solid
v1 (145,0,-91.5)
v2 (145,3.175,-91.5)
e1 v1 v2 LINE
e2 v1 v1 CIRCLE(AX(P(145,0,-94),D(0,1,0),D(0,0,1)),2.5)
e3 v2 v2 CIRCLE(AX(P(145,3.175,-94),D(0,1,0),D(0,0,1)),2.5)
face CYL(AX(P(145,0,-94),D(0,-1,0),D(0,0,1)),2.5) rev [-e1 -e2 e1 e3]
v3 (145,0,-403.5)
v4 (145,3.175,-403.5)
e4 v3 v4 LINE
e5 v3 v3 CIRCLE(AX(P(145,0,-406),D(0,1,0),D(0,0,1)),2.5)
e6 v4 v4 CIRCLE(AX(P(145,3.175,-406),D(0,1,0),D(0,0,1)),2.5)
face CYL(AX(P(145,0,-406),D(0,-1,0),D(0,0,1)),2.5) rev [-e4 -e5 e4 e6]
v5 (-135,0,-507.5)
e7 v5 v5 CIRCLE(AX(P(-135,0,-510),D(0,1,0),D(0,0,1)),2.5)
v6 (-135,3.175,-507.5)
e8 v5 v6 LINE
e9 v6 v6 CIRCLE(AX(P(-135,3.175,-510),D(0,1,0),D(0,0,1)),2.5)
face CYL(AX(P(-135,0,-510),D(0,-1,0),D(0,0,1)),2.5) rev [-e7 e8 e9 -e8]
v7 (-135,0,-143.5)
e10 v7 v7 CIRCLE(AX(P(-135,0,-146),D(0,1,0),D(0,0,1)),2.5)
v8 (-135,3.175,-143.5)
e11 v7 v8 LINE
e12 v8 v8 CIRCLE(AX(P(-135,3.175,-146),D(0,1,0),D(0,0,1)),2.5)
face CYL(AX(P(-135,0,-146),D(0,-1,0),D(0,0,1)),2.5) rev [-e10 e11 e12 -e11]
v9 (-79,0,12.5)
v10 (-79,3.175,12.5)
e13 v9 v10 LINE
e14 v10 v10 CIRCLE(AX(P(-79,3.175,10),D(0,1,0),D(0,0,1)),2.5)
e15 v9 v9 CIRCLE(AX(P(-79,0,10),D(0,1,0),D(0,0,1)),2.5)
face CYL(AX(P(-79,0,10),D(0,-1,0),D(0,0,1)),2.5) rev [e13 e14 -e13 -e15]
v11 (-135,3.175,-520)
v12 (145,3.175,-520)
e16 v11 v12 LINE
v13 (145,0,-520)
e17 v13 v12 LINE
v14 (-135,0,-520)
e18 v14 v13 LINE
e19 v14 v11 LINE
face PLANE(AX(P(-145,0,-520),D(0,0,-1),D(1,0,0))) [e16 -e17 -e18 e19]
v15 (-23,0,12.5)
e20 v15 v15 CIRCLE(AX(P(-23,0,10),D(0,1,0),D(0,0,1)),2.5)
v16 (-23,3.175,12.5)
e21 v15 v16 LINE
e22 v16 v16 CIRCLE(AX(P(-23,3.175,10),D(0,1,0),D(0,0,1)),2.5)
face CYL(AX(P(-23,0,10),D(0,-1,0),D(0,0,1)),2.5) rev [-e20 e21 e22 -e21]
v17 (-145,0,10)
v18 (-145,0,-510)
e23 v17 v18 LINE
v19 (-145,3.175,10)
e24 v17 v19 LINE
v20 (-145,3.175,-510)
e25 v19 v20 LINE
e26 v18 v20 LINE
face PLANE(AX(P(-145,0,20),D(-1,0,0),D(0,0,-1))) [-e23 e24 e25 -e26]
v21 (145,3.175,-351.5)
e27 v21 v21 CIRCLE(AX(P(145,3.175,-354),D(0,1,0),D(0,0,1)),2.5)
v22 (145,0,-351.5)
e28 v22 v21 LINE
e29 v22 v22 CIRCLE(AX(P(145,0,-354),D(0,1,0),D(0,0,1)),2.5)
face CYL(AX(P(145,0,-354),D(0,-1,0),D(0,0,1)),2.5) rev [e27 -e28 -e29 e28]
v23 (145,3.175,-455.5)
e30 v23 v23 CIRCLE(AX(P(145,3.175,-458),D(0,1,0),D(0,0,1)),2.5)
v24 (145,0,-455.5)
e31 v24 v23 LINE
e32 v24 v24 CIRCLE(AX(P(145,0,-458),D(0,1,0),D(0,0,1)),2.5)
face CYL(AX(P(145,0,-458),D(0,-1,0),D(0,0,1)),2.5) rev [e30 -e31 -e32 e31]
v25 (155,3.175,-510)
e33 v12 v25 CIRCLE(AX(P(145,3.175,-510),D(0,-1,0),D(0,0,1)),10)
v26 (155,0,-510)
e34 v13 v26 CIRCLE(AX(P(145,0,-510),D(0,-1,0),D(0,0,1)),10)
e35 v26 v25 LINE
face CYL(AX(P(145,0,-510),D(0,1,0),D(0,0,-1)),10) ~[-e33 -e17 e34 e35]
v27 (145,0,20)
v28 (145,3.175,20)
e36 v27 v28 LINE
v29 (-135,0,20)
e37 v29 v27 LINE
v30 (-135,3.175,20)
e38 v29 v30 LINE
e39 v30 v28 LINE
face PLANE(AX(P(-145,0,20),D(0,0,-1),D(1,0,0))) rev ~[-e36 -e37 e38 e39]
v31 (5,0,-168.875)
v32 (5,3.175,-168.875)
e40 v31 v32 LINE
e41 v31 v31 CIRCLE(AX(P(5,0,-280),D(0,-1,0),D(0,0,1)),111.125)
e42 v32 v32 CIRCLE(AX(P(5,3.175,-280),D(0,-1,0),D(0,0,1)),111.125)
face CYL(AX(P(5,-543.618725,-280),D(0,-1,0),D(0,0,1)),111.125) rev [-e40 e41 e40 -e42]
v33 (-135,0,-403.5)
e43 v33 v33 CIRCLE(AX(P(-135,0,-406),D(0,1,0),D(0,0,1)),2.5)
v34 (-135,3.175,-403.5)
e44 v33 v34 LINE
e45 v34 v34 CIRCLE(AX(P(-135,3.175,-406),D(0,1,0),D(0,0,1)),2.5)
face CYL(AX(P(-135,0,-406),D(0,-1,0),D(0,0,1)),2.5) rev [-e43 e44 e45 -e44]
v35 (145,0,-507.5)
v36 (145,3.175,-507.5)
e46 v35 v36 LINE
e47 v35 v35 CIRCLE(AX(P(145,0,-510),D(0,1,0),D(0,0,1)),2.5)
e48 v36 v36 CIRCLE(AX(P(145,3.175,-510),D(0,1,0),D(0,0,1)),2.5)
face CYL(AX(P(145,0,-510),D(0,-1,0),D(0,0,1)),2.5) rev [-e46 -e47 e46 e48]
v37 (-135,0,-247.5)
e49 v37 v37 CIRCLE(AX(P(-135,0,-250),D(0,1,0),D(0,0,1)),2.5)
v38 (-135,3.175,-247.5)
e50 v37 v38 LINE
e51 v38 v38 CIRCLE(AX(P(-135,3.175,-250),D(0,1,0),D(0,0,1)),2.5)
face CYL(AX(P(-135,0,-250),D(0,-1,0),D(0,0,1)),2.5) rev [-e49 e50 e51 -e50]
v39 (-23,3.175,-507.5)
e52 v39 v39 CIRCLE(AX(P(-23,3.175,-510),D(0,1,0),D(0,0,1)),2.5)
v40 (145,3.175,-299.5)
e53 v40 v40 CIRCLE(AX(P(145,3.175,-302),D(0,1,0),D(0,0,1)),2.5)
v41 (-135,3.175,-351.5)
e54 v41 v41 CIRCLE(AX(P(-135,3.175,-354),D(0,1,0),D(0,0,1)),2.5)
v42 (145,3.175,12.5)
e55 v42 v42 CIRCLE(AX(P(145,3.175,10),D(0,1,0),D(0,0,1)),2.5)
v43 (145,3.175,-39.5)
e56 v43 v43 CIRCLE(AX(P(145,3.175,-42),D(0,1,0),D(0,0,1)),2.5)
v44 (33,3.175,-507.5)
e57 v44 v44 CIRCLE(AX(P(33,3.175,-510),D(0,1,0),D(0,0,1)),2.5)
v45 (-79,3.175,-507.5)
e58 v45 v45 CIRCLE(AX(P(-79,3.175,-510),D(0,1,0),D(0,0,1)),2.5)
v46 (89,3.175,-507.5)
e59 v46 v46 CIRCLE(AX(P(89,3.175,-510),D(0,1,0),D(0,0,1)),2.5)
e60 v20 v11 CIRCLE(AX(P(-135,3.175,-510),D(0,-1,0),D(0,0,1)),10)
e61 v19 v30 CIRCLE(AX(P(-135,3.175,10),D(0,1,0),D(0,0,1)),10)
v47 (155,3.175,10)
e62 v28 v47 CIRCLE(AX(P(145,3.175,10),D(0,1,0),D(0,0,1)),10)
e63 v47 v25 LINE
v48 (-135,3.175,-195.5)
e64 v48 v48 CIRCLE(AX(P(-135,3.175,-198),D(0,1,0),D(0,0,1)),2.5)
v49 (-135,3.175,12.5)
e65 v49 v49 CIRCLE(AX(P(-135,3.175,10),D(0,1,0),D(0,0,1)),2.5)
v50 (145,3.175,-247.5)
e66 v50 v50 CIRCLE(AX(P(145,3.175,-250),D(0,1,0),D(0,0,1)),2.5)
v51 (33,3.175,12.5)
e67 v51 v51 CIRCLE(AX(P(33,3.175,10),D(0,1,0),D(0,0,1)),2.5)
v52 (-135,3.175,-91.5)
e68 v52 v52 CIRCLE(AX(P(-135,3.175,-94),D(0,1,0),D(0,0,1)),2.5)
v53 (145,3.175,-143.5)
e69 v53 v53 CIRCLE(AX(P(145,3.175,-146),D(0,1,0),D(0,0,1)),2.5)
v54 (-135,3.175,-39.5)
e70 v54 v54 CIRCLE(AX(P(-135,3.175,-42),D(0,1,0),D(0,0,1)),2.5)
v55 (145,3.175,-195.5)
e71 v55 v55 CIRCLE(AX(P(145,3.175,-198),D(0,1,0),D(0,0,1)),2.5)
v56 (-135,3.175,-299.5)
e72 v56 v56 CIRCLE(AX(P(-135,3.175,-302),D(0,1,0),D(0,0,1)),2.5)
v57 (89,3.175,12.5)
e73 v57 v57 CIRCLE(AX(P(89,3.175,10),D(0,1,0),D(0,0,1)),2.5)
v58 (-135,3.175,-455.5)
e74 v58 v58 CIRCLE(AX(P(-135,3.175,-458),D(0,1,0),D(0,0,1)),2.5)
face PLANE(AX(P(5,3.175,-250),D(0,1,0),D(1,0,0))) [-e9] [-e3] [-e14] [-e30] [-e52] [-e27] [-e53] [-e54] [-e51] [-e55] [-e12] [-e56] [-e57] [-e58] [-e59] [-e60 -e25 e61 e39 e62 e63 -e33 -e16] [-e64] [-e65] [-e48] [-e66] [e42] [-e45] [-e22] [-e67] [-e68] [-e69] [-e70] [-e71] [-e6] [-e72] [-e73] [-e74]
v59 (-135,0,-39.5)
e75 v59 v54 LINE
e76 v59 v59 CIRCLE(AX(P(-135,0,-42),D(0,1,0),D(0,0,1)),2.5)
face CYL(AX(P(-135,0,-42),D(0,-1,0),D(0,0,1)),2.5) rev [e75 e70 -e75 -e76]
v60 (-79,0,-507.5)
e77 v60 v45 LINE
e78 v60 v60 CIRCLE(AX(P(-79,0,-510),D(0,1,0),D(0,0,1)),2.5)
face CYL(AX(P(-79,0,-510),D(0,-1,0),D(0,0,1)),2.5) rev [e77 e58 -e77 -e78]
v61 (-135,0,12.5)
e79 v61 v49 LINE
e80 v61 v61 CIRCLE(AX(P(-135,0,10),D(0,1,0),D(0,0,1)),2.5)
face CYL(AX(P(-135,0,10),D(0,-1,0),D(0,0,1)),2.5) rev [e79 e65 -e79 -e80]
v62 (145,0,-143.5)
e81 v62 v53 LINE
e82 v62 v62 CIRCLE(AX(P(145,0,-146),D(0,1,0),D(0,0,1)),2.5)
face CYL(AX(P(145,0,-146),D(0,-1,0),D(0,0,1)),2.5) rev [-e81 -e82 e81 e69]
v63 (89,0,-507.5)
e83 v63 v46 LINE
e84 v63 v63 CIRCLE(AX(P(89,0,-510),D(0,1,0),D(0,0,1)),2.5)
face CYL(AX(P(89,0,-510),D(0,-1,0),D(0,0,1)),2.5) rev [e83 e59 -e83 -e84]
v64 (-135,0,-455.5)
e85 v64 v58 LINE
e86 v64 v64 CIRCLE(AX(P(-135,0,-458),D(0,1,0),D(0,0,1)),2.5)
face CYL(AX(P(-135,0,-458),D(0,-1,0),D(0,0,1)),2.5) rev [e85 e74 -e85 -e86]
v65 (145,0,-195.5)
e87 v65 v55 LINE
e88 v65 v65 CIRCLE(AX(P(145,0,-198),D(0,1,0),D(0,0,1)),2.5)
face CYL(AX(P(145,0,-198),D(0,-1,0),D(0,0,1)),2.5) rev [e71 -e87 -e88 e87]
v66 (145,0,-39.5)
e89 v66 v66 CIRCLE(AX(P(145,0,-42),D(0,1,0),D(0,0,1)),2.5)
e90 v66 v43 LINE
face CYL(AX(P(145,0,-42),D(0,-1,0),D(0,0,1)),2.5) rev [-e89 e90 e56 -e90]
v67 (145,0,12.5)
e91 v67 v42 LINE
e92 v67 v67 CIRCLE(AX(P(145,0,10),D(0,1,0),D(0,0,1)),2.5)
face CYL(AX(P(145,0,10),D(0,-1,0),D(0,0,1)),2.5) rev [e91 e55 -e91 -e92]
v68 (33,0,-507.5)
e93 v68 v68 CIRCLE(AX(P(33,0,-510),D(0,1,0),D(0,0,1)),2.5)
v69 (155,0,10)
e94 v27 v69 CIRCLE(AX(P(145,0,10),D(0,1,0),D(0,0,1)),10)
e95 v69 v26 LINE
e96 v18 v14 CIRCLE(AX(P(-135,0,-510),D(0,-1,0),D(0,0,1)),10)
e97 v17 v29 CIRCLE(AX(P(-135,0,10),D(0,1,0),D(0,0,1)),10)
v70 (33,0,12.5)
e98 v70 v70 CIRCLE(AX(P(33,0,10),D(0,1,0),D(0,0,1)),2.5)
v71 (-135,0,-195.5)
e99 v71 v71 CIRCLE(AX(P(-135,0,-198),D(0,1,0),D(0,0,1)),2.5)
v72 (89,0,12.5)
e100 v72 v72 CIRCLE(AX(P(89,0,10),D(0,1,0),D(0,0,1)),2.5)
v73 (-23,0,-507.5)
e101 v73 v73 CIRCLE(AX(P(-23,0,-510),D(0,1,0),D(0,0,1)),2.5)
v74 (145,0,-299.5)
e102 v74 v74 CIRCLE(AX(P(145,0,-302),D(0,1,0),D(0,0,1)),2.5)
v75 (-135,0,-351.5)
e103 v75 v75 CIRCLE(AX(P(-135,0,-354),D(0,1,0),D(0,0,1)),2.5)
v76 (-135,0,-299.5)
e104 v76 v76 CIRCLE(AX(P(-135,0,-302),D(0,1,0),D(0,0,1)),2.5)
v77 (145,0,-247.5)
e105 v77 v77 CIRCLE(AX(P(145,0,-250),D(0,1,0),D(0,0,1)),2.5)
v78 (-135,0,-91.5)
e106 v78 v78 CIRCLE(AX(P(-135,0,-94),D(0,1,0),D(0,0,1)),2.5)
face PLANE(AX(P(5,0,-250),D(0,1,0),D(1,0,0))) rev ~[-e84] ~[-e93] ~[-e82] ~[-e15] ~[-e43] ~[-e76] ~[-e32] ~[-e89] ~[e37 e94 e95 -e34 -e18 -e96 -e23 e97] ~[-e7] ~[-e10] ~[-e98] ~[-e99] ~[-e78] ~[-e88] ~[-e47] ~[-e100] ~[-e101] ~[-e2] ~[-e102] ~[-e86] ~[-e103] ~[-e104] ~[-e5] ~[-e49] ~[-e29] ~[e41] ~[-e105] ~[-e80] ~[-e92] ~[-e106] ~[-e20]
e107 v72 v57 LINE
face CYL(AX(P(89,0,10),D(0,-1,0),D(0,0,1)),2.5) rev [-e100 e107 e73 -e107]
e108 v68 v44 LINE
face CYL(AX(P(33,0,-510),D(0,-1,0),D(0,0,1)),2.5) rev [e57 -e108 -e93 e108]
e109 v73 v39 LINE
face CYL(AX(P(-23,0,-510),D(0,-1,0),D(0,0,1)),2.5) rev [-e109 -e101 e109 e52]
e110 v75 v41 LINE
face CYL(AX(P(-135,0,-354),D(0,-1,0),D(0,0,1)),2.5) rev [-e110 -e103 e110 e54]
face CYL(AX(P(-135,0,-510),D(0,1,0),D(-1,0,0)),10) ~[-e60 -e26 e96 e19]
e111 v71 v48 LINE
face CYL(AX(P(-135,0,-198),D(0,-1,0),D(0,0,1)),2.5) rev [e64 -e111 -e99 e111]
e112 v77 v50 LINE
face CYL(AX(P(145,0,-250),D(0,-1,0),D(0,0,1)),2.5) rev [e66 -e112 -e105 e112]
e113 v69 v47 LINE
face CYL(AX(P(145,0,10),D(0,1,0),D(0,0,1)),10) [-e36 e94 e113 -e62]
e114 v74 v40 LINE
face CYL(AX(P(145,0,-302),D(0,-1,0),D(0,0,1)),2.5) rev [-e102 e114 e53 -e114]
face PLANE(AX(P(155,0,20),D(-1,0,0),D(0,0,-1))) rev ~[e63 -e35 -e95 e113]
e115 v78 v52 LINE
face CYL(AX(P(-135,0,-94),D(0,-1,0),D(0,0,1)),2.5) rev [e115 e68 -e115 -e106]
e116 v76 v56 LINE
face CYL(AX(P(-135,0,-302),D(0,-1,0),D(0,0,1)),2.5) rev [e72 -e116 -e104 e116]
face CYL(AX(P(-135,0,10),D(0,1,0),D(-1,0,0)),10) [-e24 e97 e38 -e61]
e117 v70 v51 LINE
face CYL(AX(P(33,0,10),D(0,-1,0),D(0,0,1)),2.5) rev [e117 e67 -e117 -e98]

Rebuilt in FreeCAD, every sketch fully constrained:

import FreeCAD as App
import Part
import Sketcher

V = App.Vector
Q = App.Units.Quantity


def edges_at(feature, points):
    """Names of the edges that pass closest to the given points."""
    edges = feature.Shape.Edges
    near = lambda p: min(range(len(edges)), key=lambda i: edges[i].distToShape(Part.Vertex(*p))[0])
    return sorted({f"Edge{near(p) + 1}" for p in points})


def add_polygon(sketch, points):
    """Adds a closed chain of lines whose ends are joined by coincident constraints."""
    first, n = sketch.GeometryCount, len(points)
    for a, b in zip(points, points[1:] + points[:1]):
        sketch.addGeometry(Part.LineSegment(App.Vector(*a, 0), App.Vector(*b, 0)), False)
    for i in range(n):
        sketch.addConstraint(Sketcher.Constraint("Coincident", first + i, 2, first + (i + 1) % n, 1))

doc = App.newDocument("Part")
body = doc.addObject("PartDesign::Body", "Body")

sketch1 = body.newObject("Sketcher::SketchObject", "Sketch")
sketch1.AttachmentSupport = (doc.getObject("XZ_Plane"), [""])
sketch1.MapMode = "FlatFace"
add_polygon(sketch1, [(-145, -520), (-145, 20), (155, 20), (155, -520)])
sketch1.addGeometry(Part.Circle(V(-135, 10, 0), V(0, 0, 1), 2.5), False)
sketch1.addGeometry(Part.Circle(V(-135, -42, 0), V(0, 0, 1), 2.5), False)
sketch1.addGeometry(Part.Circle(V(-79, 10, 0), V(0, 0, 1), 2.5), False)
sketch1.addGeometry(Part.Circle(V(-135, -94, 0), V(0, 0, 1), 2.5), False)
sketch1.addGeometry(Part.Circle(V(-23, 10, 0), V(0, 0, 1), 2.5), False)
sketch1.addGeometry(Part.Circle(V(-135, -146, 0), V(0, 0, 1), 2.5), False)
sketch1.addGeometry(Part.Circle(V(-135, -198, 0), V(0, 0, 1), 2.5), False)
sketch1.addGeometry(Part.Circle(V(33, 10, 0), V(0, 0, 1), 2.5), False)
sketch1.addGeometry(Part.Circle(V(89, 10, 0), V(0, 0, 1), 2.5), False)
sketch1.addGeometry(Part.Circle(V(145, 10, 0), V(0, 0, 1), 2.5), False)
sketch1.addGeometry(Part.Circle(V(145, -42, 0), V(0, 0, 1), 2.5), False)
sketch1.addGeometry(Part.Circle(V(145, -94, 0), V(0, 0, 1), 2.5), False)
sketch1.addGeometry(Part.Circle(V(145, -146, 0), V(0, 0, 1), 2.5), False)
sketch1.addGeometry(Part.Circle(V(145, -198, 0), V(0, 0, 1), 2.5), False)
sketch1.addGeometry(Part.Circle(V(-135, -250, 0), V(0, 0, 1), 2.5), False)
sketch1.addGeometry(Part.Circle(V(-135, -302, 0), V(0, 0, 1), 2.5), False)
sketch1.addGeometry(Part.Circle(V(-135, -354, 0), V(0, 0, 1), 2.5), False)
sketch1.addGeometry(Part.Circle(V(-135, -406, 0), V(0, 0, 1), 2.5), False)
sketch1.addGeometry(Part.Circle(V(-135, -458, 0), V(0, 0, 1), 2.5), False)
sketch1.addGeometry(Part.Circle(V(-135, -510, 0), V(0, 0, 1), 2.5), False)
sketch1.addGeometry(Part.Circle(V(-79, -510, 0), V(0, 0, 1), 2.5), False)
sketch1.addGeometry(Part.Circle(V(-23, -510, 0), V(0, 0, 1), 2.5), False)
sketch1.addGeometry(Part.Circle(V(145, -250, 0), V(0, 0, 1), 2.5), False)
sketch1.addGeometry(Part.Circle(V(145, -302, 0), V(0, 0, 1), 2.5), False)
sketch1.addGeometry(Part.Circle(V(145, -354, 0), V(0, 0, 1), 2.5), False)
sketch1.addGeometry(Part.Circle(V(33, -510, 0), V(0, 0, 1), 2.5), False)
sketch1.addGeometry(Part.Circle(V(145, -406, 0), V(0, 0, 1), 2.5), False)
sketch1.addGeometry(Part.Circle(V(89, -510, 0), V(0, 0, 1), 2.5), False)
sketch1.addGeometry(Part.Circle(V(145, -458, 0), V(0, 0, 1), 2.5), False)
sketch1.addGeometry(Part.Circle(V(145, -510, 0), V(0, 0, 1), 2.5), False)
sketch1.addConstraint([
    Sketcher.Constraint("Vertical", 0),
    Sketcher.Constraint("Horizontal", 1),
    Sketcher.Constraint("Vertical", 2),
    Sketcher.Constraint("Horizontal", 3),
    Sketcher.Constraint("Equal", 4, 5),
    Sketcher.Constraint("Equal", 5, 6),
    Sketcher.Constraint("Equal", 6, 7),
    Sketcher.Constraint("Equal", 7, 8),
    Sketcher.Constraint("Equal", 8, 9),
    Sketcher.Constraint("Equal", 9, 10),
    Sketcher.Constraint("Equal", 10, 11),
    Sketcher.Constraint("Equal", 11, 12),
    Sketcher.Constraint("Equal", 12, 13),
    Sketcher.Constraint("Equal", 13, 14),
    Sketcher.Constraint("Equal", 14, 15),
    Sketcher.Constraint("Equal", 15, 16),
    Sketcher.Constraint("Equal", 16, 17),
    Sketcher.Constraint("Equal", 17, 18),
    Sketcher.Constraint("Equal", 18, 19),
    Sketcher.Constraint("Equal", 19, 20),
    Sketcher.Constraint("Equal", 20, 21),
    Sketcher.Constraint("Equal", 21, 22),
    Sketcher.Constraint("Equal", 22, 23),
    Sketcher.Constraint("Equal", 23, 24),
    Sketcher.Constraint("Equal", 24, 25),
    Sketcher.Constraint("Equal", 25, 26),
    Sketcher.Constraint("Equal", 26, 27),
    Sketcher.Constraint("Equal", 27, 28),
    Sketcher.Constraint("Equal", 28, 29),
    Sketcher.Constraint("Equal", 29, 30),
    Sketcher.Constraint("Equal", 30, 31),
    Sketcher.Constraint("Equal", 31, 32),
    Sketcher.Constraint("Equal", 32, 33),
    Sketcher.Constraint("Horizontal", 4, 3, 6, 3),
    Sketcher.Constraint("Horizontal", 6, 3, 8, 3),
    Sketcher.Constraint("Horizontal", 8, 3, 11, 3),
    Sketcher.Constraint("Horizontal", 11, 3, 12, 3),
    Sketcher.Constraint("Horizontal", 12, 3, 13, 3),
    Sketcher.Constraint("Horizontal", 5, 3, 14, 3),
    Sketcher.Constraint("Horizontal", 7, 3, 15, 3),
    Sketcher.Constraint("Horizontal", 9, 3, 16, 3),
    Sketcher.Constraint("Horizontal", 10, 3, 17, 3),
    Sketcher.Constraint("Horizontal", 23, 3, 24, 3),
    Sketcher.Constraint("Horizontal", 24, 3, 25, 3),
    Sketcher.Constraint("Horizontal", 18, 3, 26, 3),
    Sketcher.Constraint("Horizontal", 19, 3, 27, 3),
    Sketcher.Constraint("Horizontal", 20, 3, 28, 3),
    Sketcher.Constraint("Horizontal", 25, 3, 29, 3),
    Sketcher.Constraint("Horizontal", 21, 3, 30, 3),
    Sketcher.Constraint("Horizontal", 29, 3, 31, 3),
    Sketcher.Constraint("Horizontal", 22, 3, 32, 3),
    Sketcher.Constraint("Horizontal", 31, 3, 33, 3),
    Sketcher.Constraint("Vertical", 4, 3, 5, 3),
    Sketcher.Constraint("Vertical", 5, 3, 7, 3),
    Sketcher.Constraint("Vertical", 7, 3, 9, 3),
    Sketcher.Constraint("Vertical", 9, 3, 10, 3),
    Sketcher.Constraint("Vertical", 13, 3, 14, 3),
    Sketcher.Constraint("Vertical", 14, 3, 15, 3),
    Sketcher.Constraint("Vertical", 15, 3, 16, 3),
    Sketcher.Constraint("Vertical", 16, 3, 17, 3),
    Sketcher.Constraint("Vertical", 10, 3, 18, 3),
    Sketcher.Constraint("Vertical", 18, 3, 19, 3),
    Sketcher.Constraint("Vertical", 19, 3, 20, 3),
    Sketcher.Constraint("Vertical", 20, 3, 21, 3),
    Sketcher.Constraint("Vertical", 21, 3, 22, 3),
    Sketcher.Constraint("Vertical", 22, 3, 23, 3),
    Sketcher.Constraint("Vertical", 6, 3, 24, 3),
    Sketcher.Constraint("Vertical", 8, 3, 25, 3),
    Sketcher.Constraint("Vertical", 17, 3, 26, 3),
    Sketcher.Constraint("Vertical", 26, 3, 27, 3),
    Sketcher.Constraint("Vertical", 27, 3, 28, 3),
    Sketcher.Constraint("Vertical", 11, 3, 29, 3),
    Sketcher.Constraint("Vertical", 28, 3, 30, 3),
    Sketcher.Constraint("Vertical", 12, 3, 31, 3),
    Sketcher.Constraint("Vertical", 30, 3, 32, 3),
    Sketcher.Constraint("Vertical", 32, 3, 33, 3),
    Sketcher.Constraint("Diameter", 4, Q("5 mm")),
    Sketcher.Constraint("DistanceX", 1, 1, 1, 2, Q("300 mm")),
    Sketcher.Constraint("DistanceY", 0, 1, 0, 2, Q("540 mm")),
    Sketcher.Constraint("DistanceX", 4, 3, -1, 1, Q("135 mm")),
    Sketcher.Constraint("DistanceY", -1, 1, 4, 3, Q("10 mm")),
    Sketcher.Constraint("DistanceY", 5, 3, -1, 1, Q("42 mm")),
    Sketcher.Constraint("DistanceX", 6, 3, -1, 1, Q("79 mm")),
    Sketcher.Constraint("DistanceY", 7, 3, -1, 1, Q("94 mm")),
    Sketcher.Constraint("DistanceX", 8, 3, -1, 1, Q("23 mm")),
    Sketcher.Constraint("DistanceY", 9, 3, -1, 1, Q("146 mm")),
    Sketcher.Constraint("DistanceY", 10, 3, -1, 1, Q("198 mm")),
    Sketcher.Constraint("DistanceX", -1, 1, 11, 3, Q("33 mm")),
    Sketcher.Constraint("DistanceX", -1, 1, 12, 3, Q("89 mm")),
    Sketcher.Constraint("DistanceX", -1, 1, 13, 3, Q("145 mm")),
    Sketcher.Constraint("DistanceY", 18, 3, -1, 1, Q("250 mm")),
    Sketcher.Constraint("DistanceY", 19, 3, -1, 1, Q("302 mm")),
    Sketcher.Constraint("DistanceY", 20, 3, -1, 1, Q("354 mm")),
    Sketcher.Constraint("DistanceY", 21, 3, -1, 1, Q("406 mm")),
    Sketcher.Constraint("DistanceY", 22, 3, -1, 1, Q("458 mm")),
    Sketcher.Constraint("DistanceY", 23, 3, -1, 1, Q("510 mm")),
    Sketcher.Constraint("DistanceX", 0, 2, -1, 1, Q("145 mm")),
    Sketcher.Constraint("DistanceY", -1, 1, 0, 2, Q("20 mm")),
])
pad1 = body.newObject("PartDesign::Pad", "Pad")
pad1.Profile = sketch1
pad1.Length = 3.175
pad1.Reversed = True
doc.recompute()

fillet = body.newObject("PartDesign::Fillet", "Fillet")
fillet.Base = (pad1, edges_at(pad1, [
    (155, 1.587, -520),
    (155, 1.587, 20),
    (-145, 1.587, 20),
    (-145, 1.587, -520),
]))
fillet.Radius = 10

sketch2 = body.newObject("Sketcher::SketchObject", "Sketch001")
sketch2.AttachmentSupport = (doc.getObject("XZ_Plane"), [""])
sketch2.MapMode = "FlatFace"
sketch2.addGeometry(Part.Circle(V(5, -280, 0), V(0, 0, 1), 111), False)
sketch2.addConstraint([
    Sketcher.Constraint("Diameter", 0, Q("222.25 mm")),
    Sketcher.Constraint("DistanceX", -1, 1, 0, 3, Q("5 mm")),
    Sketcher.Constraint("DistanceY", 0, 3, -1, 1, Q("280 mm")),
])
pocket1 = body.newObject("PartDesign::Pocket", "Pocket")
pocket1.Profile = sketch2
pocket1.Type = "ThroughAll"
pocket1.Midplane = True

doc.recompute()
